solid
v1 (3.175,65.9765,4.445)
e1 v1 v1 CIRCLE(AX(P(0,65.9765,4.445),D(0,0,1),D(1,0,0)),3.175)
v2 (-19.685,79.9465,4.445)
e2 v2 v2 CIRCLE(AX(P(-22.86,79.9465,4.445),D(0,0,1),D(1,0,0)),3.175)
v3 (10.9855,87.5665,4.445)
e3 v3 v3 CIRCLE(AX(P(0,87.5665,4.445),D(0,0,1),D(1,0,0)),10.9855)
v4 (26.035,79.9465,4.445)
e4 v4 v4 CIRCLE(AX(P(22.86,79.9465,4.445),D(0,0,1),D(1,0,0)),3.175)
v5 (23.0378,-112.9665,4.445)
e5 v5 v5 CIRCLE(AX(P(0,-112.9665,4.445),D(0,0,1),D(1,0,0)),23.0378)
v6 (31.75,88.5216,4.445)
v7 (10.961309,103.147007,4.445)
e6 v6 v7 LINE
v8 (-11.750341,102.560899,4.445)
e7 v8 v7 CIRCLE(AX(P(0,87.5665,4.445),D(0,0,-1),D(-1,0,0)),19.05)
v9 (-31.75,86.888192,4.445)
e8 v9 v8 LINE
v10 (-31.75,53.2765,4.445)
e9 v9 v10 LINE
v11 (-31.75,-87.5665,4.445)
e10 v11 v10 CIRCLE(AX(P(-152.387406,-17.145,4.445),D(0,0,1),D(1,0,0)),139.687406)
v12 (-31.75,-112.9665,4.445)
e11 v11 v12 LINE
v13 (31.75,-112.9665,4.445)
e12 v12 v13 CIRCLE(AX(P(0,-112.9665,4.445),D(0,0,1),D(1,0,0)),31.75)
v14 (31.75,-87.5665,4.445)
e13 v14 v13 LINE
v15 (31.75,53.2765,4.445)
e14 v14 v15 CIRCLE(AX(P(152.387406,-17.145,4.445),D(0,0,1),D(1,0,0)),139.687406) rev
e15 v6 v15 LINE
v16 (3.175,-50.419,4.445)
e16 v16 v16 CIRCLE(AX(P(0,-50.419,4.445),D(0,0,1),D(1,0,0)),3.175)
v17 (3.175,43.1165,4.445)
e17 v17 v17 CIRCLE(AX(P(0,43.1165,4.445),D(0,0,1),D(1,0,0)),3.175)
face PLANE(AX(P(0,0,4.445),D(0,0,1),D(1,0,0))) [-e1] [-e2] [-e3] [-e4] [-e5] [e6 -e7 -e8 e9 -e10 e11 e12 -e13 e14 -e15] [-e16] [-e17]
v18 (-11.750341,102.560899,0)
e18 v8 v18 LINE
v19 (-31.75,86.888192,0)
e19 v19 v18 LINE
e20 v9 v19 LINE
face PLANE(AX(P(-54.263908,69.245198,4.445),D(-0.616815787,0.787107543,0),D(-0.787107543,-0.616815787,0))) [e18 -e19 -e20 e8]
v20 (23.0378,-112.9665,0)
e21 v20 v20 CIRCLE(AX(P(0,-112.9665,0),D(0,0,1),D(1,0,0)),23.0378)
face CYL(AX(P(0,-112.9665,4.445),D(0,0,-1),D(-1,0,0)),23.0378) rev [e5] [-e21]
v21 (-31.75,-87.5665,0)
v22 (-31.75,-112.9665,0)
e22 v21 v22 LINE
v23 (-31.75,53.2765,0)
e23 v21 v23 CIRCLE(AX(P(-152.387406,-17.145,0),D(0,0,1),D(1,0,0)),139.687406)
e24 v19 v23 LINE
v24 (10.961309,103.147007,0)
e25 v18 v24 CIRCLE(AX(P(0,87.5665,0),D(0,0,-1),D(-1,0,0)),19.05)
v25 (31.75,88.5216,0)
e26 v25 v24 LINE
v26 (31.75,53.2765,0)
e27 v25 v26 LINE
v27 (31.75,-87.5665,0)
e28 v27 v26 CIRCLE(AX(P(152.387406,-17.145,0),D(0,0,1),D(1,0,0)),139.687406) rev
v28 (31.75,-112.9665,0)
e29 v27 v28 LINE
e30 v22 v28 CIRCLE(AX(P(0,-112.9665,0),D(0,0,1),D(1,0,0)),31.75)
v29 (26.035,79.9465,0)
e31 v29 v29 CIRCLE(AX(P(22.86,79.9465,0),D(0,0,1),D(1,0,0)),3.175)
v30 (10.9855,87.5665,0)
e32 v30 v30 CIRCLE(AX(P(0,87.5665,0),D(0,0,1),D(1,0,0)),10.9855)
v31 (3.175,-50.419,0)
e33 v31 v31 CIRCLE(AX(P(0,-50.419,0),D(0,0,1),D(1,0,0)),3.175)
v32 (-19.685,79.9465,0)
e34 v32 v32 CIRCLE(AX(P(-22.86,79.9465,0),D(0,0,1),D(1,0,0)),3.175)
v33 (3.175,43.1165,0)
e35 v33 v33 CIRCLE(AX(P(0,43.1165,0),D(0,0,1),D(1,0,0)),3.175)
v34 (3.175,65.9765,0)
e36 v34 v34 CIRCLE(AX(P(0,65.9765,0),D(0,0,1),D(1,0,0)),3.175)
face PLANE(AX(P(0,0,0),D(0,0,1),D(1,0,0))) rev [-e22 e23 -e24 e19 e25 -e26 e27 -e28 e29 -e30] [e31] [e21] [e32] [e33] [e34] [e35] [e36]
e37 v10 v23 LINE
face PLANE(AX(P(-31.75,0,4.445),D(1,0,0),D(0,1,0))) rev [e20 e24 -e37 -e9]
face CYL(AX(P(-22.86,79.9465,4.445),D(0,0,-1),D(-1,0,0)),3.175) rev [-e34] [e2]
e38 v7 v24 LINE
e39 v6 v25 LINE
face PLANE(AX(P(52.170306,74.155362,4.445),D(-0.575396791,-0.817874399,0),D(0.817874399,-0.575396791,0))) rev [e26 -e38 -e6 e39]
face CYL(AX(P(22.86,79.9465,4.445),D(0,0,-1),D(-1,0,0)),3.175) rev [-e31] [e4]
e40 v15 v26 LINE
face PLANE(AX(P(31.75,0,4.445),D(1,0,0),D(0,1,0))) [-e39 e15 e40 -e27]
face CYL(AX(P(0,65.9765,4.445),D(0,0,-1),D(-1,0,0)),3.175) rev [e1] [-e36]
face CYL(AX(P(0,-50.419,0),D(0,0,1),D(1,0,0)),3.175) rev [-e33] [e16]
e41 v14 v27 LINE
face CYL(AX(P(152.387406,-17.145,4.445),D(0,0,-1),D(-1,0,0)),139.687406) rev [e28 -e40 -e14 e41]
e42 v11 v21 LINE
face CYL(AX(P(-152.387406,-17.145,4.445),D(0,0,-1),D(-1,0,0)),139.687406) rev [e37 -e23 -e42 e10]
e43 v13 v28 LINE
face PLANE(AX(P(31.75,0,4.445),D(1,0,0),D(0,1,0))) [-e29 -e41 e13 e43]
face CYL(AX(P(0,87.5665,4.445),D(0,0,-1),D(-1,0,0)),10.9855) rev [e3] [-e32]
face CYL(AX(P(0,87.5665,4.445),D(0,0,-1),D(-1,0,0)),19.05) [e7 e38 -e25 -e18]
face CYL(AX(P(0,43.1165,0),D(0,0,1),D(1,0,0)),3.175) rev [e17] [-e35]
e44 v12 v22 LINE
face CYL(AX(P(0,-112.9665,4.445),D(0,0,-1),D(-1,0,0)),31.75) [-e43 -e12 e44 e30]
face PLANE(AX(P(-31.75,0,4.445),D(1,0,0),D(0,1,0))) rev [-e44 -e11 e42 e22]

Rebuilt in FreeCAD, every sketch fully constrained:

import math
import FreeCAD as App
import Part
import Sketcher

V = App.Vector
Q = App.Units.Quantity

doc = App.newDocument("Part")
body = doc.addObject("PartDesign::Body", "Body")

# Sketch on XY plane
sketch1 = doc.addObject("Sketcher::SketchObject", "Sketch")
body.addObject(sketch1)
sketch1.AttachmentSupport = (doc.XY_Plane, [""])
sketch1.MapMode = "FlatFace"
sketch1.addGeometry([
    Part.LineSegment(V(31.8, 113, 0), V(-31.8, 113, 0)),  # 0
    Part.LineSegment(V(-31.8, 113, 0), V(-31.8, 53.3, 0)),  # 1
    Part.ArcOfCircle(Part.Circle(V(-152.4, -17.1, 0), V(0, 0, 1), 139.7), math.radians(-30), math.radians(30)),  # 2
    Part.LineSegment(V(-31.8, -87.6, 0), V(-31.8, -113, 0)),  # 3
    Part.ArcOfCircle(Part.Circle(V(0, -113, 0), V(0, 0, 1), 31.8), math.radians(180), math.radians(360)),  # 4
    Part.LineSegment(V(31.8, -113, 0), V(31.8, -87.6, 0)),  # 5
    Part.ArcOfCircle(Part.Circle(V(152.4, -17.1, 0), V(0, 0, 1), 139.7), math.radians(150), math.radians(210)),  # 6
    Part.LineSegment(V(31.8, 53.3, 0), V(31.8, 113, 0)),  # 7
    Part.Circle(V(0, -113, 0), V(0, 0, 1), 23),  # 8
    Part.Circle(V(-22.9, 79.9, 0), V(0, 0, 1), 3.2),  # 9
    Part.Circle(V(0, 66, 0), V(0, 0, 1), 3.2),  # 10
    Part.Circle(V(0, 87.6, 0), V(0, 0, 1), 11),  # 11
    Part.Circle(V(22.9, 79.9, 0), V(0, 0, 1), 3.2),  # 12
], False)
sketch1.addConstraint([
    Sketcher.Constraint("Coincident", 0, 2, 1, 1),
    Sketcher.Constraint("Coincident", 1, 2, 2, 2),
    Sketcher.Constraint("Coincident", 2, 1, 3, 1),
    Sketcher.Constraint("Tangent", 3, 2, 4, 1),
    Sketcher.Constraint("Tangent", 4, 2, 5, 1),
    Sketcher.Constraint("Coincident", 5, 2, 6, 2),
    Sketcher.Constraint("Coincident", 6, 1, 7, 1),
    Sketcher.Constraint("Coincident", 7, 2, 0, 1),
    Sketcher.Constraint("Horizontal", 0),
    Sketcher.Constraint("Vertical", 1),
    Sketcher.Constraint("Vertical", 3),
    Sketcher.Constraint("Vertical", 5),
    Sketcher.Constraint("Vertical", 7),
    Sketcher.Constraint("Coincident", 8, 3, 4, 3),
    Sketcher.Constraint("Equal", 2, 6),
    Sketcher.Constraint("Equal", 9, 10),
    Sketcher.Constraint("Equal", 10, 12),
    Sketcher.Constraint("Symmetric", 0, 2, 4, 2, -1, 1),
    Sketcher.Constraint("Symmetric", 2, 3, 6, 3, -2),
    Sketcher.Constraint("Symmetric", 9, 3, 12, 3, -2),
    Sketcher.Constraint("PointOnObject", 4, 3, -2),
    Sketcher.Constraint("PointOnObject", 10, 3, -2),
    Sketcher.Constraint("PointOnObject", 11, 3, -2),
    Sketcher.Constraint("Horizontal", 1, 2, 6, 1),
    Sketcher.Constraint("Diameter", 9, Q("0.25 in")),
    Sketcher.Constraint("DistanceY", 3, 2, 3, 1, Q("1 in")),
    Sketcher.Constraint("Radius", 4, Q("1.25 in")),
    Sketcher.Constraint("Diameter", 8, Q("1.814 in")),
    Sketcher.Constraint("Diameter", 11, Q("0.865 in")),
    Sketcher.Constraint("DistanceY", 11, 3, 0, 2, Q("1 in")),
    Sketcher.Constraint("DistanceY", 1, 2, 1, 1, Q("2.35 in")),
    Sketcher.Constraint("DistanceX", 9, 3, -1, 1, Q("0.9 in")),
    Sketcher.Constraint("DistanceY", 9, 3, 11, 3, Q("0.3 in")),
    Sketcher.Constraint("DistanceY", 1, 2, 10, 3, Q("0.5 in")),
    Sketcher.Constraint("DistanceY", 4, 3, 9, 3, Q("7.595 in")),
    Sketcher.Constraint("Radius", 2, 139.687406),
])
pad1 = doc.addObject("PartDesign::Pad", "Pad")
body.addObject(pad1)
pad1.Profile = sketch1
pad1.Length = Q("0.175 in")

# Sketch on XY plane
sketch2 = doc.addObject("Sketcher::SketchObject", "Sketch001")
body.addObject(sketch2)
sketch2.AttachmentSupport = (doc.XY_Plane, [""])
sketch2.MapMode = "FlatFace"
sketch2.AttachmentOffset = App.Placement(V(0, 0, 0.175 * 25.4), App.Rotation())
sketch2.addGeometry([
    Part.Circle(V(0, 43.1, 0), V(0, 0, 1), 3.2),
    Part.Circle(V(0, -50.4, 0), V(0, 0, 1), 3.2),
], False)
sketch2.addConstraint([
    Sketcher.Constraint("Equal", 0, 1),
    Sketcher.Constraint("PointOnObject", 0, 3, -2),
    Sketcher.Constraint("PointOnObject", 1, 3, -2),
    Sketcher.Constraint("Diameter", 0, Q("0.25 in")),
    Sketcher.Constraint("DistanceY", 1, 3, -1, 1, Q("1.985 in")),
    Sketcher.Constraint("DistanceY", -1, 1, 0, 3, Q("1.6975 in")),
])
pocket1 = doc.addObject("PartDesign::Pocket", "Pocket")
body.addObject(pocket1)
pocket1.Profile = sketch2
pocket1.Type = "ThroughAll"

# Sketch on XY plane
sketch3 = doc.addObject("Sketcher::SketchObject", "Sketch002")
body.addObject(sketch3)
sketch3.AttachmentSupport = (doc.XY_Plane, [""])
sketch3.MapMode = "FlatFace"
sketch3.addGeometry([
    Part.LineSegment(V(32, 113, 0), V(32, 89, 0)),  # 0
    Part.LineSegment(V(32, 89, 0), V(11, 103, 0)),  # 1
    Part.ArcOfCircle(Part.Circle(V(0, 88, 0), V(0, 0, 1), 19), math.radians(55), math.radians(128)),  # 2
    Part.LineSegment(V(-12, 103, 0), V(-32, 87, 0)),  # 3
    Part.LineSegment(V(-32, 87, 0), V(-32, 113, 0)),  # 4
    Part.LineSegment(V(-32, 113, 0), V(32, 113, 0)),  # 5
], False)
sketch3.addConstraint([
    Sketcher.Constraint("Coincident", 0, 2, 1, 1),
    Sketcher.Constraint("Tangent", 1, 2, 2, 1),
    Sketcher.Constraint("Tangent", 2, 2, 3, 1),
    Sketcher.Constraint("Coincident", 3, 2, 4, 1),
    Sketcher.Constraint("Coincident", 4, 2, 5, 1),
    Sketcher.Constraint("Coincident", 5, 2, 0, 1),
    Sketcher.Constraint("Vertical", 0),
    Sketcher.Constraint("Vertical", 4),
    Sketcher.Constraint("Horizontal", 5),
    Sketcher.Constraint("PointOnObject", 2, 3, -2),
    Sketcher.Constraint("Radius", 2, Q("0.75 in")),
    Sketcher.Constraint("DistanceX", 5, 1, 5, 2, Q("2.5 in")),
    Sketcher.Constraint("DistanceY", 2, 3, 4, 2, Q("1 in")),
    Sketcher.Constraint("DistanceX", -1, 1, 0, 2, Q("1.25 in")),
    Sketcher.Constraint("DistanceY", 0, 2, 0, 1, 24.4449),
    Sketcher.Constraint("DistanceY", -1, 1, 2, 3, Q("3.4475 in")),
    Sketcher.Constraint("DistanceY", -1, 1, 2, 2, 102.560899),
])
pocket2 = doc.addObject("PartDesign::Pocket", "Pocket001")
body.addObject(pocket2)
pocket2.Profile = sketch3
pocket2.Type = "ThroughAll"
pocket2.Reversed = True

doc.recompute()
